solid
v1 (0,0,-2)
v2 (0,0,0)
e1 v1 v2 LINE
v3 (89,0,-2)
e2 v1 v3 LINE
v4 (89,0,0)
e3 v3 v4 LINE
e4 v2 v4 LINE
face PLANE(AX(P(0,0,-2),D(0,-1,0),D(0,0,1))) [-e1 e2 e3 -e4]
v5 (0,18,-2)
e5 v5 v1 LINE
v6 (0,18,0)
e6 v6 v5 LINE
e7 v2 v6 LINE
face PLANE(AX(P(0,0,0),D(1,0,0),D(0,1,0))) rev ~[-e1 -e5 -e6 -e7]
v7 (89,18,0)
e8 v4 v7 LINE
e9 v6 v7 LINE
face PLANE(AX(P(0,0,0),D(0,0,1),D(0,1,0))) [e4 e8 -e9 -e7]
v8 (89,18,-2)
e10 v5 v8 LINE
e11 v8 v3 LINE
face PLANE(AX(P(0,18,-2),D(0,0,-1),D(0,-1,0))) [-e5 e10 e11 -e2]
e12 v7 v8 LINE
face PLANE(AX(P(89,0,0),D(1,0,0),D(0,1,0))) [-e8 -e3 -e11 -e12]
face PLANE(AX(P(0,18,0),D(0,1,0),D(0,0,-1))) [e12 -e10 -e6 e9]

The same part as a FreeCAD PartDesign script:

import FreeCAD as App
import Part
import Sketcher

doc = App.newDocument("Part")
body = doc.addObject("PartDesign::Body", "Body")

sketch1 = body.newObject("Sketcher::SketchObject", "Sketch")
sketch1.AttachmentSupport = (doc.getObject("YZ_Plane"), [""])
sketch1.MapMode = "FlatFace"
sketch1.addGeometry([
    Part.LineSegment(App.Vector(18, 0, 0), App.Vector(0, 0, 0)),
    Part.LineSegment(App.Vector(0, 0, 0), App.Vector(0, -2, 0)),
    Part.LineSegment(App.Vector(0, -2, 0), App.Vector(18, -2, 0)),
    Part.LineSegment(App.Vector(18, -2, 0), App.Vector(18, 0, 0)),
], False)
sketch1.addConstraint([
    Sketcher.Constraint("Coincident", 0, 2, 1, 1),
    Sketcher.Constraint("Coincident", 1, 2, 2, 1),
    Sketcher.Constraint("Coincident", 2, 2, 3, 1),
    Sketcher.Constraint("Coincident", 3, 2, 0, 1),
    Sketcher.Constraint("Horizontal", 0),
    Sketcher.Constraint("Vertical", 1),
    Sketcher.Constraint("Horizontal", 2),
    Sketcher.Constraint("Vertical", 3),
    Sketcher.Constraint("Coincident", 0, 2, -1, 1),
    Sketcher.Constraint("DistanceX", 0, 2, 0, 1, 18.0),
    Sketcher.Constraint("DistanceY", 1, 2, 1, 1, 2.0),
])
pad1 = body.newObject("PartDesign::Pad", "Pad")
pad1.Profile = sketch1
pad1.Length = 89

doc.recompute()
